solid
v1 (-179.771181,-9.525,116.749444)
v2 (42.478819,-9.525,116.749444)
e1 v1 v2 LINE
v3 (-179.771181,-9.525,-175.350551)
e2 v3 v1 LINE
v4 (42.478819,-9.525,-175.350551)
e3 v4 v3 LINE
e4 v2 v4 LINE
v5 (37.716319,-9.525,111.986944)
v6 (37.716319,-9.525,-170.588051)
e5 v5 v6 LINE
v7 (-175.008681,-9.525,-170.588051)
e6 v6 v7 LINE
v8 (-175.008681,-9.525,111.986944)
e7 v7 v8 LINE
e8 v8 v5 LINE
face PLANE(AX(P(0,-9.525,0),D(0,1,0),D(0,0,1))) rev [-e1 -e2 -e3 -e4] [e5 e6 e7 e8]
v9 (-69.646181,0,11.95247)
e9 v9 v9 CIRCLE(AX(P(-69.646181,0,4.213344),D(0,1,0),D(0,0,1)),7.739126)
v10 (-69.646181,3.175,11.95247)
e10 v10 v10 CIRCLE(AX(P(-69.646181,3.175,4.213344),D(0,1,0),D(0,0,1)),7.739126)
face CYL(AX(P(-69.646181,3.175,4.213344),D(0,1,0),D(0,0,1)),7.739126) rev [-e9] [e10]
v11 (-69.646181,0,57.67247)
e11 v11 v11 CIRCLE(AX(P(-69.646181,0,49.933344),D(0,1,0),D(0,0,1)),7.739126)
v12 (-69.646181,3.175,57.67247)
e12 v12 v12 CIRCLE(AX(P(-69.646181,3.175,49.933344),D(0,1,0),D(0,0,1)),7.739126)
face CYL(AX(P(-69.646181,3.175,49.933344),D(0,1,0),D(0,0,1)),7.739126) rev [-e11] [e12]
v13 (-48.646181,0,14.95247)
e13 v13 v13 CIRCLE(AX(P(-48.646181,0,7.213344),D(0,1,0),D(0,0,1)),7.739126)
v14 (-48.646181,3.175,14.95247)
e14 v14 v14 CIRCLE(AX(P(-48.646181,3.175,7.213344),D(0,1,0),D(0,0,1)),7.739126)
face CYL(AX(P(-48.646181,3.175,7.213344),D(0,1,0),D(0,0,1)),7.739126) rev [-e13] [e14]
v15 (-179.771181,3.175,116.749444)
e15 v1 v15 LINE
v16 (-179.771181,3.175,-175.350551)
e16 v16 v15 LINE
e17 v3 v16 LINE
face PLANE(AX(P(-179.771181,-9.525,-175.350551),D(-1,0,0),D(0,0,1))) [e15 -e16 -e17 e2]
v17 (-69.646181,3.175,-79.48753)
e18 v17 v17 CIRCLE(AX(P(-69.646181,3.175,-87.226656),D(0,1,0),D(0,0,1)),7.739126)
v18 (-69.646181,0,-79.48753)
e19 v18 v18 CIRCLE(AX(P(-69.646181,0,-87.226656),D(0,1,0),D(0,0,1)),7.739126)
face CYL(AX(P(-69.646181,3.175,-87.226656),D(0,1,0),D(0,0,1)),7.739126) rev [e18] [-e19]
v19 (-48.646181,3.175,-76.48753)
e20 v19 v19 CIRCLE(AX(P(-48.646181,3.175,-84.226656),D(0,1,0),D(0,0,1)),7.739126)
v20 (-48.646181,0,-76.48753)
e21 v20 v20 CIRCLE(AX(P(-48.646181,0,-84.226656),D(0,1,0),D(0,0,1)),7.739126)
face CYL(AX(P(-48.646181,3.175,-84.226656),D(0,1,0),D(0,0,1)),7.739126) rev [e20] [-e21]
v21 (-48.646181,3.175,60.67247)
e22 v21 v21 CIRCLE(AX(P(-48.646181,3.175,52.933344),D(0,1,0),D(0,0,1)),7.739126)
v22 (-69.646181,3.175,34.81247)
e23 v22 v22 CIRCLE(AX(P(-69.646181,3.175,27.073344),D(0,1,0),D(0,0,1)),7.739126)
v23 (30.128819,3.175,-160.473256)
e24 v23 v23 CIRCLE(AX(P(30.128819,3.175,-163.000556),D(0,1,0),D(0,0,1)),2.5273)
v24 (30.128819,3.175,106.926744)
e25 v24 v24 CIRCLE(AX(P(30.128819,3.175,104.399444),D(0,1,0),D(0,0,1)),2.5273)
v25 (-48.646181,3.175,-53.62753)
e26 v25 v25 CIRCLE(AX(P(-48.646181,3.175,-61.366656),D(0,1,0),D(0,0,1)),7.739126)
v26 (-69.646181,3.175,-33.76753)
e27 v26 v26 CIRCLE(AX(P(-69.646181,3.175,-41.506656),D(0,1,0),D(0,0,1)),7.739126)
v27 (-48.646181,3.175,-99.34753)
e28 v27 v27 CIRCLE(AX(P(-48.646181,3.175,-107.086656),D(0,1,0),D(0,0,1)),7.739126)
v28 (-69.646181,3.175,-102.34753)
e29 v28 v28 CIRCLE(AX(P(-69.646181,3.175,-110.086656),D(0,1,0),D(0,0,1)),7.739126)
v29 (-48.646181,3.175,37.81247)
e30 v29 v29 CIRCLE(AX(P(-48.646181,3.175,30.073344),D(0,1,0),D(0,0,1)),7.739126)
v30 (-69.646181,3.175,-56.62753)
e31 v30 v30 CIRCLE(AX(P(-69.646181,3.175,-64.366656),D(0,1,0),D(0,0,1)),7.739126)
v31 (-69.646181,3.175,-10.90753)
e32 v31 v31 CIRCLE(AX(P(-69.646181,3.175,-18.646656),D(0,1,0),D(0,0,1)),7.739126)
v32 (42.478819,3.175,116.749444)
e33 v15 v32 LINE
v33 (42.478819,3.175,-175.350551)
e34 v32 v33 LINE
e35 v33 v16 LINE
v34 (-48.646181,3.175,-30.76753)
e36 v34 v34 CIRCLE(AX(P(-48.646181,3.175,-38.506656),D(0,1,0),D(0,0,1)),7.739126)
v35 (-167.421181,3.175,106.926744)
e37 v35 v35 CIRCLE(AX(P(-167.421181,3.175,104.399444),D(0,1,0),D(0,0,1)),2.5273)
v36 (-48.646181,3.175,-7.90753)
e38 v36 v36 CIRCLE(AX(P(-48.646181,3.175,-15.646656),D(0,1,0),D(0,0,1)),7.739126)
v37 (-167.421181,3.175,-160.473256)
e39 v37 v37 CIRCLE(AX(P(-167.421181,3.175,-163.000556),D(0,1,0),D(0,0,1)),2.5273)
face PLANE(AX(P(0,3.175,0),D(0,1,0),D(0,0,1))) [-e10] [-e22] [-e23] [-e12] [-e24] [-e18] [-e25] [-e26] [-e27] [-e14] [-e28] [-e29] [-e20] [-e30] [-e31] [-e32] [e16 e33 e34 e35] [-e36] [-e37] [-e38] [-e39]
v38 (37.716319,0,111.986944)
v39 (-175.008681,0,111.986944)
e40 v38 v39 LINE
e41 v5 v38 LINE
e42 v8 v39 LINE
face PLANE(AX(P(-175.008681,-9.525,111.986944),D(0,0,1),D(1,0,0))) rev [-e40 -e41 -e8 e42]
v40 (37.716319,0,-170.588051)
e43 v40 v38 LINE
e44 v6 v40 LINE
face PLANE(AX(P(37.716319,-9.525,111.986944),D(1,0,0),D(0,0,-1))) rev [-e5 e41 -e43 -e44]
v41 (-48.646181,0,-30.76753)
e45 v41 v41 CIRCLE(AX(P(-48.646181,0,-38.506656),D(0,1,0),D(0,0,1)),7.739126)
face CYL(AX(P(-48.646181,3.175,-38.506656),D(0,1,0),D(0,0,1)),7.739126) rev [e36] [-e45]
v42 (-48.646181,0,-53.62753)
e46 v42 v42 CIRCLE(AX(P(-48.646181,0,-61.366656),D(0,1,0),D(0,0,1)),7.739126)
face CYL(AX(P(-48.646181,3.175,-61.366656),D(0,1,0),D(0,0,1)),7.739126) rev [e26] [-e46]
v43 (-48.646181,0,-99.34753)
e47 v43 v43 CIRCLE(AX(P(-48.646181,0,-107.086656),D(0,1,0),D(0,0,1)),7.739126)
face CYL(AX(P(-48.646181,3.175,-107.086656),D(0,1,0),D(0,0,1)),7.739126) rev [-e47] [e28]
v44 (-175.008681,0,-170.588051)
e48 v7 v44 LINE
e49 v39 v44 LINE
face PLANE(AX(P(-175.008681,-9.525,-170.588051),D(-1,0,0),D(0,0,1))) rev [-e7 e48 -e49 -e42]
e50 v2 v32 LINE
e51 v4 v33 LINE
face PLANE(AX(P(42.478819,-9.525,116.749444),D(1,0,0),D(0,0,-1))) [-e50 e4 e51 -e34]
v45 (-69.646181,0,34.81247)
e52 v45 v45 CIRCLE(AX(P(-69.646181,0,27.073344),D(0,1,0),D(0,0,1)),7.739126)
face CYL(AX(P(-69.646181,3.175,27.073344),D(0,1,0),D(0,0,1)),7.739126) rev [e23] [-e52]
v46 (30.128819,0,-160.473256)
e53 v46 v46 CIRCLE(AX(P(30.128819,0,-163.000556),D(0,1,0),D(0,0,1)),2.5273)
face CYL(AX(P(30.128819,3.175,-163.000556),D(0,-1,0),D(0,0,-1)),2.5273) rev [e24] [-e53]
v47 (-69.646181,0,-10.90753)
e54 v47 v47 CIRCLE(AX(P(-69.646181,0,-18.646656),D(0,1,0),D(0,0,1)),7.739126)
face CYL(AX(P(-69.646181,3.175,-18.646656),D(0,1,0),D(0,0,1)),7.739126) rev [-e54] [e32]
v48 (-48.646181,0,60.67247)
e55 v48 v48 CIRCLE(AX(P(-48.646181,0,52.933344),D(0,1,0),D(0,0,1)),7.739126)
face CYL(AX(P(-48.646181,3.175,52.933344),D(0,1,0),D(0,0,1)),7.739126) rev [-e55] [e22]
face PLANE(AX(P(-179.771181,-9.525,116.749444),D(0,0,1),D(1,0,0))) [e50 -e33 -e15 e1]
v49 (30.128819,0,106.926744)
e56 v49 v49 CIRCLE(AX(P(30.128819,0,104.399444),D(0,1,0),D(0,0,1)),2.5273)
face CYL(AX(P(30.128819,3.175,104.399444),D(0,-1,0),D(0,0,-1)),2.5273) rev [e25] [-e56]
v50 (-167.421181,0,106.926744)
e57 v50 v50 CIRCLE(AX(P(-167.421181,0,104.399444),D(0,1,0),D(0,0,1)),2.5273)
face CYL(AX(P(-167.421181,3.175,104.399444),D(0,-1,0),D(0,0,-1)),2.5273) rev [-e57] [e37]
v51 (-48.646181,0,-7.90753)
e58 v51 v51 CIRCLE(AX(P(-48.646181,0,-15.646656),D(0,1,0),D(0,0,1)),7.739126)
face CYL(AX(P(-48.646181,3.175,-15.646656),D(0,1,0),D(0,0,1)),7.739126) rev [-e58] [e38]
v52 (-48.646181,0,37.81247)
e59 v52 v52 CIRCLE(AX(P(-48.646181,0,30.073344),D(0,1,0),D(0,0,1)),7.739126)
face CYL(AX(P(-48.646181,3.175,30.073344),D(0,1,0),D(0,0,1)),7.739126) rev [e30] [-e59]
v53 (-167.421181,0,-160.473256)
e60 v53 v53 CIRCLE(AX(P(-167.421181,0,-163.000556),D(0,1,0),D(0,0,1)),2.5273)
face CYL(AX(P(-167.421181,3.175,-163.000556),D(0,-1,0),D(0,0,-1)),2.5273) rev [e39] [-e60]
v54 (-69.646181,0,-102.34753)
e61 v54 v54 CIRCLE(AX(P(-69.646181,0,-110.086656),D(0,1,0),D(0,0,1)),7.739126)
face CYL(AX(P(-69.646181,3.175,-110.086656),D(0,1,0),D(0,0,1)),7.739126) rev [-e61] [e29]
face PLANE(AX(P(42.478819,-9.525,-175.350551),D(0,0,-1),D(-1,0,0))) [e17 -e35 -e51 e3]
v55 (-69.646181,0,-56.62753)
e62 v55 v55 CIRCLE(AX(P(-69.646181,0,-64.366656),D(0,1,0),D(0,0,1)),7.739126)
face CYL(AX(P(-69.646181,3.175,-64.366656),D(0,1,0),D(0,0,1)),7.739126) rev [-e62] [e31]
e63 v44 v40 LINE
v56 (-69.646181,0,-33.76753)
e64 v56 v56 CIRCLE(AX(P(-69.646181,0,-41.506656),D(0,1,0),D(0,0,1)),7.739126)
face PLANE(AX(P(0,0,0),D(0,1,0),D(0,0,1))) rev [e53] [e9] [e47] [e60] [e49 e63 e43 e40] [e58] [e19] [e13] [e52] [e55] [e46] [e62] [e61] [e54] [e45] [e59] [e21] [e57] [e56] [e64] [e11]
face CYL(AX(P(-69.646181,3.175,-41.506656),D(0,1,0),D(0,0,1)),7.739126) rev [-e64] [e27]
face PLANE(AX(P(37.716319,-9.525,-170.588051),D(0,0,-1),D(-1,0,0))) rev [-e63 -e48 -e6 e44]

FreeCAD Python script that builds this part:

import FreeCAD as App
import Part
import Sketcher

V = App.Vector
Q = App.Units.Quantity


def add_polygon(sketch, points):
    """Adds a closed chain of lines whose ends are joined by coincident constraints."""
    first, n = sketch.GeometryCount, len(points)
    for a, b in zip(points, points[1:] + points[:1]):
        sketch.addGeometry(Part.LineSegment(App.Vector(*a, 0), App.Vector(*b, 0)), False)
    for i in range(n):
        sketch.addConstraint(Sketcher.Constraint("Coincident", first + i, 2, first + (i + 1) % n, 1))

doc = App.newDocument("Part")
body = doc.addObject("PartDesign::Body", "Body")

# Sketch on XZ plane
sketch1 = body.newObject("Sketcher::SketchObject", "Sketch")
sketch1.AttachmentSupport = (doc.getObject("XZ_Plane"), [""])
sketch1.MapMode = "FlatFace"
add_polygon(sketch1, [(-173.4, -169), (-173.4, 110.4), (36.1, 110.4), (36.1, -169)])  # lines 0-3
sketch1.addGeometry(Part.Circle(V(-167.4, 104.4, 0), V(0, 0, 1), 2.5), False)  # 4
sketch1.addGeometry(Part.Circle(V(30.1, 104.4, 0), V(0, 0, 1), 2.5), False)  # 5
sketch1.addGeometry(Part.Circle(V(-167.4, -163, 0), V(0, 0, 1), 2.5), False)  # 6
sketch1.addGeometry(Part.Circle(V(30.1, -163, 0), V(0, 0, 1), 2.5), False)  # 7
sketch1.addConstraint(Sketcher.Constraint("Vertical", 0))
sketch1.addConstraint(Sketcher.Constraint("Horizontal", 1))
sketch1.addConstraint(Sketcher.Constraint("Vertical", 2))
sketch1.addConstraint(Sketcher.Constraint("Horizontal", 3))
sketch1.addConstraint(Sketcher.Constraint("Equal", 4, 5))
sketch1.addConstraint(Sketcher.Constraint("Equal", 5, 6))
sketch1.addConstraint(Sketcher.Constraint("Equal", 6, 7))
sketch1.addConstraint(Sketcher.Constraint("Horizontal", 4, 3, 5, 3))
sketch1.addConstraint(Sketcher.Constraint("Horizontal", 6, 3, 7, 3))
sketch1.addConstraint(Sketcher.Constraint("Vertical", 4, 3, 6, 3))
sketch1.addConstraint(Sketcher.Constraint("Vertical", 5, 3, 7, 3))
sketch1.addConstraint(Sketcher.Constraint("DistanceY", 0, 1, 0, 2, Q("10.9999998 in")))
sketch1.addConstraint(Sketcher.Constraint("Diameter", 4, Q("0.199 in")))
sketch1.addConstraint(Sketcher.Constraint("DistanceX", 1, 1, 1, 2, Q("8.25 in")))
sketch1.addConstraint(Sketcher.Constraint("DistanceX", 4, 3, 5, 3, 197.55))
sketch1.addConstraint(Sketcher.Constraint("DistanceY", 6, 3, 4, 3, 267.4))
sketch1.addConstraint(Sketcher.Constraint("DistanceX", 0, 2, 4, 3, 6.0))
sketch1.addConstraint(Sketcher.Constraint("DistanceY", 4, 3, 0, 2, 6.0))
sketch1.addConstraint(Sketcher.Constraint("DistanceX", 4, 3, -1, 1, 167.421181))
sketch1.addConstraint(Sketcher.Constraint("DistanceY", 2, 2, -1, 1, 169.000551))
pad1 = body.newObject("PartDesign::Pad", "Pad")
pad1.Profile = sketch1
pad1.Length = Q("0.125 in")
pad1.Reversed = True
body2 = doc.addObject("PartDesign::Body", "Body001")

# Sketch on XZ plane
sketch2 = body2.newObject("Sketcher::SketchObject", "Sketch001")
sketch2.AttachmentSupport = (doc.getObject("XZ_Plane001"), [""])
sketch2.MapMode = "FlatFace"
sketch2.AttachmentOffset = App.Placement(V(0, 0, -0.125 * 25.4), App.Rotation())
add_polygon(sketch2, [(-180, -175), (-180, 117), (42, 117), (42, -175)])  # lines 0-3
add_polygon(sketch2, [(38, 112), (-175, 112), (-175, -171), (38, -171)])  # lines 4-7
sketch2.addConstraint(Sketcher.Constraint("Vertical", 0))
sketch2.addConstraint(Sketcher.Constraint("Horizontal", 1))
sketch2.addConstraint(Sketcher.Constraint("Vertical", 2))
sketch2.addConstraint(Sketcher.Constraint("Horizontal", 3))
sketch2.addConstraint(Sketcher.Constraint("Horizontal", 4))
sketch2.addConstraint(Sketcher.Constraint("Vertical", 5))
sketch2.addConstraint(Sketcher.Constraint("Horizontal", 6))
sketch2.addConstraint(Sketcher.Constraint("Vertical", 7))
sketch2.addConstraint(Sketcher.Constraint("DistanceY", 0, 1, 0, 2, Q("11.4999998 in")))
sketch2.addConstraint(Sketcher.Constraint("DistanceX", 1, 1, 1, 2, Q("8.75 in")))
sketch2.addConstraint(Sketcher.Constraint("DistanceX", 4, 2, 4, 1, Q("8.375 in")))
sketch2.addConstraint(Sketcher.Constraint("DistanceY", 5, 2, 5, 1, Q("11.1249998 in")))
sketch2.addConstraint(Sketcher.Constraint("DistanceX", 0, 2, 4, 2, Q("0.1875 in")))
sketch2.addConstraint(Sketcher.Constraint("DistanceY", 4, 2, 0, 2, Q("0.1875 in")))
sketch2.addConstraint(Sketcher.Constraint("DistanceX", 0, 2, -1, 1, 179.771181))
sketch2.addConstraint(Sketcher.Constraint("DistanceY", 2, 2, -1, 1, 175.350551))
pad2 = body2.newObject("PartDesign::Pad", "Pad001")
pad2.Profile = sketch2
pad2.Length = Q("0.5 in")
body.AllowCompound = True
doc.recompute()

boolean = body.newObject("PartDesign::Boolean", "Boolean")
boolean.Type = "Fuse"
boolean.addObjects([body2])

# Sketch on XZ plane
sketch3 = body.newObject("Sketcher::SketchObject", "Sketch002")
sketch3.AttachmentSupport = (doc.getObject("XZ_Plane"), [""])
sketch3.MapMode = "FlatFace"
sketch3.AttachmentOffset = App.Placement(V(0, 0, -0.125 * 25.4), App.Rotation())
add_polygon(sketch3, [(-175, -171), (-175, 112), (38, 112), (38, -171)])  # lines 0-3
add_polygon(sketch3, [(36, 110), (-173, 110), (-173, -169), (36, -169)])  # lines 4-7
sketch3.addConstraint(Sketcher.Constraint("Vertical", 0))
sketch3.addConstraint(Sketcher.Constraint("Horizontal", 1))
sketch3.addConstraint(Sketcher.Constraint("Vertical", 2))
sketch3.addConstraint(Sketcher.Constraint("Horizontal", 3))
sketch3.addConstraint(Sketcher.Constraint("Horizontal", 4))
sketch3.addConstraint(Sketcher.Constraint("Vertical", 5))
sketch3.addConstraint(Sketcher.Constraint("Horizontal", 6))
sketch3.addConstraint(Sketcher.Constraint("Vertical", 7))
sketch3.addConstraint(Sketcher.Constraint("DistanceY", 5, 2, 5, 1, Q("10.9999998 in")))
sketch3.addConstraint(Sketcher.Constraint("DistanceX", 4, 2, 4, 1, Q("8.25 in")))
sketch3.addConstraint(Sketcher.Constraint("DistanceX", 1, 1, 1, 2, Q("8.375 in")))
sketch3.addConstraint(Sketcher.Constraint("DistanceY", 0, 1, 0, 2, Q("11.1249998 in")))
sketch3.addConstraint(Sketcher.Constraint("DistanceX", 0, 2, 4, 2, Q("0.0625 in")))
sketch3.addConstraint(Sketcher.Constraint("DistanceY", 4, 2, 0, 2, Q("0.0625 in")))
sketch3.addConstraint(Sketcher.Constraint("DistanceX", 0, 2, -1, 1, 175.008681))
sketch3.addConstraint(Sketcher.Constraint("DistanceY", 2, 2, -1, 1, 170.588051))
pad3 = body.newObject("PartDesign::Pad", "Pad002")
pad3.Profile = sketch3
pad3.Length = Q("0.125 in")

# Sketch on XZ plane
sketch4 = body.newObject("Sketcher::SketchObject", "Sketch003")
sketch4.AttachmentSupport = (doc.getObject("XZ_Plane"), [""])
sketch4.MapMode = "FlatFace"
sketch4.AttachmentOffset = App.Placement(V(0, 0, -0.125 * 25.4), App.Rotation())
sketch4.addGeometry(Part.Circle(V(-70, -110, 0), V(0, 0, 1), 8), False)
sketch4.addGeometry(Part.Circle(V(-49, -107, 0), V(0, 0, 1), 8), False)
sketch4.addGeometry(Part.Circle(V(-70, -87, 0), V(0, 0, 1), 8), False)
sketch4.addGeometry(Part.Circle(V(-49, -84, 0), V(0, 0, 1), 8), False)
sketch4.addGeometry(Part.Circle(V(-49, -61, 0), V(0, 0, 1), 8), False)
sketch4.addGeometry(Part.Circle(V(-70, -64, 0), V(0, 0, 1), 8), False)
sketch4.addGeometry(Part.Circle(V(-70, -42, 0), V(0, 0, 1), 8), False)
sketch4.addGeometry(Part.Circle(V(-49, -39, 0), V(0, 0, 1), 8), False)
sketch4.addGeometry(Part.Circle(V(-49, -16, 0), V(0, 0, 1), 8), False)
sketch4.addGeometry(Part.Circle(V(-70, -19, 0), V(0, 0, 1), 8), False)
sketch4.addGeometry(Part.Circle(V(-70, 4, 0), V(0, 0, 1), 8), False)
sketch4.addGeometry(Part.Circle(V(-49, 7, 0), V(0, 0, 1), 8), False)
sketch4.addGeometry(Part.Circle(V(-49, 30, 0), V(0, 0, 1), 8), False)
sketch4.addGeometry(Part.Circle(V(-70, 27, 0), V(0, 0, 1), 8), False)
sketch4.addGeometry(Part.Circle(V(-70, 50, 0), V(0, 0, 1), 8), False)
sketch4.addGeometry(Part.Circle(V(-49, 53, 0), V(0, 0, 1), 8), False)
sketch4.addConstraint(Sketcher.Constraint("Equal", 0, 1))
sketch4.addConstraint(Sketcher.Constraint("Equal", 1, 2))
sketch4.addConstraint(Sketcher.Constraint("Equal", 2, 3))
sketch4.addConstraint(Sketcher.Constraint("Equal", 3, 4))
sketch4.addConstraint(Sketcher.Constraint("Equal", 4, 5))
sketch4.addConstraint(Sketcher.Constraint("Equal", 5, 6))
sketch4.addConstraint(Sketcher.Constraint("Equal", 6, 7))
sketch4.addConstraint(Sketcher.Constraint("Equal", 7, 8))
sketch4.addConstraint(Sketcher.Constraint("Equal", 8, 9))
sketch4.addConstraint(Sketcher.Constraint("Equal", 9, 10))
sketch4.addConstraint(Sketcher.Constraint("Equal", 10, 11))
sketch4.addConstraint(Sketcher.Constraint("Equal", 11, 12))
sketch4.addConstraint(Sketcher.Constraint("Equal", 12, 13))
sketch4.addConstraint(Sketcher.Constraint("Equal", 13, 14))
sketch4.addConstraint(Sketcher.Constraint("Equal", 14, 15))
sketch4.addConstraint(Sketcher.Constraint("Vertical", 0, 3, 2, 3))
sketch4.addConstraint(Sketcher.Constraint("Vertical", 1, 3, 3, 3))
sketch4.addConstraint(Sketcher.Constraint("Vertical", 3, 3, 4, 3))
sketch4.addConstraint(Sketcher.Constraint("Vertical", 2, 3, 5, 3))
sketch4.addConstraint(Sketcher.Constraint("Vertical", 5, 3, 6, 3))
sketch4.addConstraint(Sketcher.Constraint("Vertical", 4, 3, 7, 3))
sketch4.addConstraint(Sketcher.Constraint("Vertical", 7, 3, 8, 3))
sketch4.addConstraint(Sketcher.Constraint("Vertical", 6, 3, 9, 3))
sketch4.addConstraint(Sketcher.Constraint("Vertical", 9, 3, 10, 3))
sketch4.addConstraint(Sketcher.Constraint("Vertical", 8, 3, 11, 3))
sketch4.addConstraint(Sketcher.Constraint("Vertical", 11, 3, 12, 3))
sketch4.addConstraint(Sketcher.Constraint("Vertical", 10, 3, 13, 3))
sketch4.addConstraint(Sketcher.Constraint("Vertical", 13, 3, 14, 3))
sketch4.addConstraint(Sketcher.Constraint("Vertical", 12, 3, 15, 3))
sketch4.addConstraint(Sketcher.Constraint("DistanceY", 0, 3, 2, 3, Q("0.9 in")))
sketch4.addConstraint(Sketcher.Constraint("DistanceY", 1, 3, 3, 3, Q("0.9 in")))
sketch4.addConstraint(Sketcher.Constraint("DistanceY", 3, 3, 4, 3, Q("0.9 in")))
sketch4.addConstraint(Sketcher.Constraint("DistanceY", 2, 3, 5, 3, Q("0.9 in")))
sketch4.addConstraint(Sketcher.Constraint("DistanceY", 5, 3, 6, 3, Q("0.9 in")))
sketch4.addConstraint(Sketcher.Constraint("DistanceY", 4, 3, 7, 3, Q("0.9 in")))
sketch4.addConstraint(Sketcher.Constraint("DistanceY", 7, 3, 8, 3, Q("0.9 in")))
sketch4.addConstraint(Sketcher.Constraint("DistanceY", 6, 3, 9, 3, Q("0.9 in")))
sketch4.addConstraint(Sketcher.Constraint("DistanceY", 9, 3, 10, 3, Q("0.9 in")))
sketch4.addConstraint(Sketcher.Constraint("DistanceY", 8, 3, 11, 3, Q("0.9 in")))
sketch4.addConstraint(Sketcher.Constraint("DistanceY", 11, 3, 12, 3, Q("0.9 in")))
sketch4.addConstraint(Sketcher.Constraint("DistanceY", 10, 3, 13, 3, Q("0.9 in")))
sketch4.addConstraint(Sketcher.Constraint("DistanceY", 13, 3, 14, 3, Q("0.9 in")))
sketch4.addConstraint(Sketcher.Constraint("DistanceY", 12, 3, 15, 3, Q("0.9 in")))
sketch4.addConstraint(Sketcher.Constraint("Diameter", 0, 15.478252))
sketch4.addConstraint(Sketcher.Constraint("DistanceX", 0, 3, 1, 3, 21.0))
sketch4.addConstraint(Sketcher.Constraint("DistanceY", 0, 3, 1, 3, 3.0))
sketch4.addConstraint(Sketcher.Constraint("DistanceX", 0, 3, -1, 1, 69.646181))
sketch4.addConstraint(Sketcher.Constraint("DistanceY", 0, 3, -1, 1, 110.086656))
doc.recompute()
hole = body.newObject("PartDesign::Hole", "Hole")
hole.Profile = sketch4
hole.ThreadType = "None"
hole.Diameter = 15.478252
hole.DepthType = "ThroughAll"
hole.Reversed = True

doc.recompute()
